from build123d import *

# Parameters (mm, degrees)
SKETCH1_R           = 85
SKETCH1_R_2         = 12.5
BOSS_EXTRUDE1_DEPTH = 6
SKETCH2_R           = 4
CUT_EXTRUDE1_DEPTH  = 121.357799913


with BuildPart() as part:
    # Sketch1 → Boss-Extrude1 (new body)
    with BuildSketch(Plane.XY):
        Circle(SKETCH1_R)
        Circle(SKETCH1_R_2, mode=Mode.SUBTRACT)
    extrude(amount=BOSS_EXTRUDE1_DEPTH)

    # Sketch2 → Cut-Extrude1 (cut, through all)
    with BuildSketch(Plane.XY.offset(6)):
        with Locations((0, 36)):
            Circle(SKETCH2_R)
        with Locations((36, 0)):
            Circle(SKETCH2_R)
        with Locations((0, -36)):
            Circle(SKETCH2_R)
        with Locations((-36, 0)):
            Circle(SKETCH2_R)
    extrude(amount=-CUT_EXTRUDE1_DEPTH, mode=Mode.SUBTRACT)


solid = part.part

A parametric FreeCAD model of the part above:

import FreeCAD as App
import Part
import Sketcher

V = App.Vector
Q = App.Units.Quantity

doc = App.newDocument("Part")
body = doc.addObject("PartDesign::Body", "Body")

# Sketch on XY plane
sketch1 = body.newObject("Sketcher::SketchObject", "Sketch")
sketch1.AttachmentSupport = (doc.getObject("XY_Plane"), [""])
sketch1.MapMode = "FlatFace"
sketch1.addGeometry([
    Part.Circle(V(0, 0, 0), V(0, 0, 1), 85),
    Part.Circle(V(0, 0, 0), V(0, 0, 1), 12),
], False)
sketch1.addConstraint([
    Sketcher.Constraint("Coincident", 0, 3, -1, 1),
    Sketcher.Constraint("Coincident", 1, 3, -1, 1),
    Sketcher.Constraint("Diameter", 0, Q("170 mm")),
    Sketcher.Constraint("Diameter", 1, Q("25 mm")),
])
pad1 = body.newObject("PartDesign::Pad", "Pad")
pad1.Profile = sketch1
pad1.Length = 6

# Sketch on XY plane
sketch2 = body.newObject("Sketcher::SketchObject", "Sketch001")
sketch2.AttachmentSupport = (doc.getObject("XY_Plane"), [""])
sketch2.MapMode = "FlatFace"
sketch2.AttachmentOffset = App.Placement(V(0, 0, 6), App.Rotation())
sketch2.addGeometry([
    Part.Circle(V(0, 36, 0), V(0, 0, 1), 4),
    Part.Circle(V(36, 0, 0), V(0, 0, 1), 4),
    Part.Circle(V(0, -36, 0), V(0, 0, 1), 4),
    Part.Circle(V(-36, 0, 0), V(0, 0, 1), 4),
], False)
sketch2.addConstraint([
    Sketcher.Constraint("Equal", 0, 1),
    Sketcher.Constraint("Equal", 1, 2),
    Sketcher.Constraint("Equal", 2, 3),
    Sketcher.Constraint("Symmetric", 0, 3, 2, 3, -1, 1),
    Sketcher.Constraint("Symmetric", 1, 3, 3, 3, -1, 1),
    Sketcher.Constraint("PointOnObject", 0, 3, -2),
    Sketcher.Constraint("PointOnObject", 1, 3, -1),
    Sketcher.Constraint("Diameter", 0, Q("8 mm")),
    Sketcher.Constraint("DistanceY", -1, 1, 0, 3, Q("36 mm")),
    Sketcher.Constraint("DistanceX", -1, 1, 1, 3, Q("36 mm")),
])
pocket1 = body.newObject("PartDesign::Pocket", "Pocket")
pocket1.Profile = sketch2
pocket1.Type = "ThroughAll"

doc.recompute()
